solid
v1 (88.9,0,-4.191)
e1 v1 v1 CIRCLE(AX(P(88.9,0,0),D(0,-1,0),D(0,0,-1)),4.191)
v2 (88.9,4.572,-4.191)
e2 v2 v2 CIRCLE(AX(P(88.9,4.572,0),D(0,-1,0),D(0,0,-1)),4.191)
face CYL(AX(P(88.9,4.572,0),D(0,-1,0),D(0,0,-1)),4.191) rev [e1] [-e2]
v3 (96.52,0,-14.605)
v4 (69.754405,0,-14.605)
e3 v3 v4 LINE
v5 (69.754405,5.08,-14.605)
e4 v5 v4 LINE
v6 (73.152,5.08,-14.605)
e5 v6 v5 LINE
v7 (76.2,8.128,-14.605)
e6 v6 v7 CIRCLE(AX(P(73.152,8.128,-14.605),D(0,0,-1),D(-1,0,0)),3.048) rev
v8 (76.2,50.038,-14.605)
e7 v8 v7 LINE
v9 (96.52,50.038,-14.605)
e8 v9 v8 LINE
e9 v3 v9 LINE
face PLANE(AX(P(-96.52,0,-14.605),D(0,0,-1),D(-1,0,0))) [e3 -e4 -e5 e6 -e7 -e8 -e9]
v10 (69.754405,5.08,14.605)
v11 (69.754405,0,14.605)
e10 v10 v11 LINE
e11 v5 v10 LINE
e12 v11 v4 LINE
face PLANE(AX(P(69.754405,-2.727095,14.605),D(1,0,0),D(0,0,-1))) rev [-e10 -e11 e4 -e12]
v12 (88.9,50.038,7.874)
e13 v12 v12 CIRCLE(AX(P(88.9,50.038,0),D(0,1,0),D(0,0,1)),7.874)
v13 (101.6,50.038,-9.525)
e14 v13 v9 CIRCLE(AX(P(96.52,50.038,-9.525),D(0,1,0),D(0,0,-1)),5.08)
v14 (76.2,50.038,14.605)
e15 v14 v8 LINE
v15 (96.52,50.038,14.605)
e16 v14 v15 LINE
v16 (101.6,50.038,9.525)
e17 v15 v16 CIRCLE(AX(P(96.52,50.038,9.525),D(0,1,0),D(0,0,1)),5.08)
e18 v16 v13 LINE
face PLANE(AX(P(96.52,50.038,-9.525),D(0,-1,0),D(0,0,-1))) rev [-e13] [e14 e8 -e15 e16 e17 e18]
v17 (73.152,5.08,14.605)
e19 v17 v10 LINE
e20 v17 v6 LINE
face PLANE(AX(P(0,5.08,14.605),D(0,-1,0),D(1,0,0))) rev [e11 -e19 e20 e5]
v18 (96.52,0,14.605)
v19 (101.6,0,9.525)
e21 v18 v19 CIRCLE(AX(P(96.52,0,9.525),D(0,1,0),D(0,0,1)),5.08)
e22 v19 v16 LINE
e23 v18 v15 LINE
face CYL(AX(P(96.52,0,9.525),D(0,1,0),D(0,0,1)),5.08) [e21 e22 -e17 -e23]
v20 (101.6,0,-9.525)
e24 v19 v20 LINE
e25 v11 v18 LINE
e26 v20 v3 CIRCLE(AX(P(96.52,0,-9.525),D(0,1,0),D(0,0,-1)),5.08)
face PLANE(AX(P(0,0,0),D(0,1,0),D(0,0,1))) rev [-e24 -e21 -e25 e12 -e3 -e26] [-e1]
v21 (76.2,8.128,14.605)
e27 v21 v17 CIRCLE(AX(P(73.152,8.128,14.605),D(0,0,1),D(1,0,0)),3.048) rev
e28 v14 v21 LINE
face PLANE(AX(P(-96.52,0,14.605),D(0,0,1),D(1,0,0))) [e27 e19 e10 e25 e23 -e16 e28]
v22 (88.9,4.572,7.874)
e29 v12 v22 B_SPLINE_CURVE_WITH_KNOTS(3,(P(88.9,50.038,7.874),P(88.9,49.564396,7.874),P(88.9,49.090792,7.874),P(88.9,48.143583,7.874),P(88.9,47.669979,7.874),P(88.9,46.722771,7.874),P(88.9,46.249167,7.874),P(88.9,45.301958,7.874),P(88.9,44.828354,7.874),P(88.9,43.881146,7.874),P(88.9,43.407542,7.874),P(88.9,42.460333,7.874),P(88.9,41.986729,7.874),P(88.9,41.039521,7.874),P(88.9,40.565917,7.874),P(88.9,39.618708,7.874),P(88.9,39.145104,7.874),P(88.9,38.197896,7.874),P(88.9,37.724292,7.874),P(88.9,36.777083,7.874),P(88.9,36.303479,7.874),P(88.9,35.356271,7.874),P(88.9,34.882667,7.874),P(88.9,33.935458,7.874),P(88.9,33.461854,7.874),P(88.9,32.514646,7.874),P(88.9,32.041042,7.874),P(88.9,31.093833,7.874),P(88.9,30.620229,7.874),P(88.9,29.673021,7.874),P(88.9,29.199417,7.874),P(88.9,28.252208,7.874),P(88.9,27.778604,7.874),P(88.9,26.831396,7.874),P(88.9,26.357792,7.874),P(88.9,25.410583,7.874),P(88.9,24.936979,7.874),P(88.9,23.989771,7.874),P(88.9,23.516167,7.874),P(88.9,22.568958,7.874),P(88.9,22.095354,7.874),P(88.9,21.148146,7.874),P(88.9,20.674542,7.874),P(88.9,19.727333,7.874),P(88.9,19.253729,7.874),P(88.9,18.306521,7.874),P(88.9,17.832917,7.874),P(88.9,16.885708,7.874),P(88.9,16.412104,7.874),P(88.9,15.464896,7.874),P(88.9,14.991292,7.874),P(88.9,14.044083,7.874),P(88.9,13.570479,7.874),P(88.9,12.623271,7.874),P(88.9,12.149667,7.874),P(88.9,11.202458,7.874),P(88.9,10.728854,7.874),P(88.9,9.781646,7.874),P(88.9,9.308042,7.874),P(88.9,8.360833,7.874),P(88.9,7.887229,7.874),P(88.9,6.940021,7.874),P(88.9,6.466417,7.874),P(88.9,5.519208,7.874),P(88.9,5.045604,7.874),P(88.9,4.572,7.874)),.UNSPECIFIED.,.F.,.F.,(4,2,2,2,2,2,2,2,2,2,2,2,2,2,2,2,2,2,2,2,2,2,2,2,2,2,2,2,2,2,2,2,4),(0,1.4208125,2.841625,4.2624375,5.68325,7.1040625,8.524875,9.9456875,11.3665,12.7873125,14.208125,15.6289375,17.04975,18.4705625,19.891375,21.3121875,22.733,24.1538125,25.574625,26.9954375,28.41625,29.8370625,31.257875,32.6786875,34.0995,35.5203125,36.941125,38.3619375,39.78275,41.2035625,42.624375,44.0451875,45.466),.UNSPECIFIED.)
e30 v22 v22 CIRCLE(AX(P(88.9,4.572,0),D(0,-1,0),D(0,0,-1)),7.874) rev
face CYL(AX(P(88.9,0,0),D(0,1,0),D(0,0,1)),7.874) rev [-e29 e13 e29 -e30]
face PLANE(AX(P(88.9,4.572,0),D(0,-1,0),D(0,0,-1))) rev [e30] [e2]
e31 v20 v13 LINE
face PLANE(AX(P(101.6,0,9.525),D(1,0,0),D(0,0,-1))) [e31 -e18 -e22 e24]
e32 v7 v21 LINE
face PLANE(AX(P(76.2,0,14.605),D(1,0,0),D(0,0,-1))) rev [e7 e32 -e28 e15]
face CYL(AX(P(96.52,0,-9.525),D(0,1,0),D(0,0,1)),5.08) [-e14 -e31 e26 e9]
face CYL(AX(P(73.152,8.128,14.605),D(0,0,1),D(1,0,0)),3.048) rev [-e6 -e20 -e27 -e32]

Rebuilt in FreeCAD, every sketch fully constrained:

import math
import FreeCAD as App
import Part
import Sketcher
Q = App.Units.Quantity


def edges_at(feature, points):
    """Names of the edges that pass closest to the given points."""
    edges = feature.Shape.Edges
    near = lambda p: min(range(len(edges)), key=lambda i: edges[i].distToShape(Part.Vertex(*p))[0])
    return sorted({f"Edge{near(p) + 1}" for p in points})


def add_polygon(sketch, points):
    """Adds a closed chain of lines whose ends are joined by coincident constraints."""
    first, n = sketch.GeometryCount, len(points)
    for a, b in zip(points, points[1:] + points[:1]):
        sketch.addGeometry(Part.LineSegment(App.Vector(*a, 0), App.Vector(*b, 0)), False)
    for i in range(n):
        sketch.addConstraint(Sketcher.Constraint("Coincident", first + i, 2, first + (i + 1) % n, 1))

doc = App.newDocument("Part")
body = doc.addObject("PartDesign::Body", "Body")

# Sketch on XZ plane
sketch1 = body.newObject("Sketcher::SketchObject", "Sketch")
sketch1.AttachmentSupport = (doc.getObject("XZ_Plane"), [""])
sketch1.MapMode = "FlatFace"
sketch1.addGeometry(Part.Circle(App.Vector(0, 0, 0), App.Vector(0, 0, 1), 13.97), False)
sketch1.addGeometry(Part.Circle(App.Vector(0, 9.5, 0), App.Vector(0, 0, 1), 1.275), False)
sketch1.addGeometry(Part.Circle(App.Vector(9.5, 0, 0), App.Vector(0, 0, 1), 1.275), False)
sketch1.addGeometry(Part.Circle(App.Vector(-9.5, 0, 0), App.Vector(0, 0, 1), 1.275), False)
sketch1.addGeometry(Part.Circle(App.Vector(0, -9.5, 0), App.Vector(0, 0, 1), 1.275), False)
sketch1.addConstraint(Sketcher.Constraint("Coincident", 0, 3, -1, 1))
sketch1.addConstraint(Sketcher.Constraint("Equal", 1, 2))
sketch1.addConstraint(Sketcher.Constraint("Equal", 2, 3))
sketch1.addConstraint(Sketcher.Constraint("Equal", 3, 4))
sketch1.addConstraint(Sketcher.Constraint("Symmetric", 2, 3, 3, 3, -1, 1))
sketch1.addConstraint(Sketcher.Constraint("Symmetric", 1, 3, 4, 3, -1, 1))
sketch1.addConstraint(Sketcher.Constraint("PointOnObject", 1, 3, -2))
sketch1.addConstraint(Sketcher.Constraint("PointOnObject", 2, 3, -1))
sketch1.addConstraint(Sketcher.Constraint("Diameter", 0, Q("1.1 in")))
sketch1.addConstraint(Sketcher.Constraint("Diameter", 1, Q("2.55 mm")))
sketch1.addConstraint(Sketcher.Constraint("DistanceY", -1, 1, 1, 3, Q("9.5 mm")))
sketch1.addConstraint(Sketcher.Constraint("DistanceX", -1, 1, 2, 3, Q("9.5 mm")))
pad1 = body.newObject("PartDesign::Pad", "Pad")
pad1.Profile = sketch1
pad1.Length = Q("0.12 in")
pad1.Reversed = True

# Sketch on XZ plane
sketch2 = body.newObject("Sketcher::SketchObject", "Sketch001")
sketch2.AttachmentSupport = (doc.getObject("XZ_Plane"), [""])
sketch2.MapMode = "FlatFace"
sketch2.AttachmentOffset = App.Placement(App.Vector(0, 0, -0.12 * 25.4), App.Rotation())
sketch2.addGeometry(Part.LineSegment(App.Vector(-96.52, 14.605, 0), App.Vector(96.52, 14.605, 0)), False)
sketch2.addGeometry(Part.ArcOfCircle(Part.Circle(App.Vector(96.52, 9.525, 0), App.Vector(0, 0, 1), 5.08), math.radians(0), math.radians(90)), False)
sketch2.addGeometry(Part.LineSegment(App.Vector(101.6, 9.525, 0), App.Vector(101.6, -9.525, 0)), False)
sketch2.addGeometry(Part.ArcOfCircle(Part.Circle(App.Vector(96.52, -9.525, 0), App.Vector(0, 0, 1), 5.08), math.radians(-90), math.radians(0)), False)
sketch2.addGeometry(Part.LineSegment(App.Vector(96.52, -14.605, 0), App.Vector(-96.52, -14.605, 0)), False)
sketch2.addGeometry(Part.ArcOfCircle(Part.Circle(App.Vector(-96.52, -9.525, 0), App.Vector(0, 0, 1), 5.08), math.radians(-180), math.radians(-90)), False)
sketch2.addGeometry(Part.LineSegment(App.Vector(-101.6, -9.525, 0), App.Vector(-101.6, 9.525, 0)), False)
sketch2.addGeometry(Part.ArcOfCircle(Part.Circle(App.Vector(-96.52, 9.525, 0), App.Vector(0, 0, 1), 5.08), math.radians(90), math.radians(180)), False)
sketch2.addGeometry(Part.Circle(App.Vector(0, 9.5, 0), App.Vector(0, 0, 1), 1.275), False)
sketch2.addGeometry(Part.Circle(App.Vector(-88.9, 0, 0), App.Vector(0, 0, 1), 7.874), False)
sketch2.addGeometry(Part.Circle(App.Vector(-9.5, 0, 0), App.Vector(0, 0, 1), 1.275), False)
sketch2.addGeometry(Part.Circle(App.Vector(0, -9.5, 0), App.Vector(0, 0, 1), 1.275), False)
sketch2.addGeometry(Part.Circle(App.Vector(9.5, 0, 0), App.Vector(0, 0, 1), 1.275), False)
sketch2.addGeometry(Part.Circle(App.Vector(88.9, 0, 0), App.Vector(0, 0, 1), 7.874), False)
sketch2.addConstraint(Sketcher.Constraint("Tangent", 0, 2, 1, 2))
sketch2.addConstraint(Sketcher.Constraint("Tangent", 1, 1, 2, 1))
sketch2.addConstraint(Sketcher.Constraint("Tangent", 2, 2, 3, 2))
sketch2.addConstraint(Sketcher.Constraint("Tangent", 3, 1, 4, 1))
sketch2.addConstraint(Sketcher.Constraint("Tangent", 4, 2, 5, 2))
sketch2.addConstraint(Sketcher.Constraint("Tangent", 5, 1, 6, 1))
sketch2.addConstraint(Sketcher.Constraint("Tangent", 6, 2, 7, 2))
sketch2.addConstraint(Sketcher.Constraint("Tangent", 7, 1, 0, 1))
sketch2.addConstraint(Sketcher.Constraint("Horizontal", 0))
sketch2.addConstraint(Sketcher.Constraint("Vertical", 2))
sketch2.addConstraint(Sketcher.Constraint("Horizontal", 4))
sketch2.addConstraint(Sketcher.Constraint("Vertical", 6))
sketch2.addConstraint(Sketcher.Constraint("Equal", 1, 3))
sketch2.addConstraint(Sketcher.Constraint("Equal", 3, 5))
sketch2.addConstraint(Sketcher.Constraint("Equal", 5, 7))
sketch2.addConstraint(Sketcher.Constraint("Equal", 8, 10))
sketch2.addConstraint(Sketcher.Constraint("Equal", 10, 11))
sketch2.addConstraint(Sketcher.Constraint("Equal", 11, 12))
sketch2.addConstraint(Sketcher.Constraint("Equal", 9, 13))
sketch2.addConstraint(Sketcher.Constraint("Symmetric", 1, 3, 5, 3, -1, 1))
sketch2.addConstraint(Sketcher.Constraint("Symmetric", 8, 3, 11, 3, -1, 1))
sketch2.addConstraint(Sketcher.Constraint("Symmetric", 10, 3, 12, 3, -1, 1))
sketch2.addConstraint(Sketcher.Constraint("Symmetric", 9, 3, 13, 3, -1, 1))
sketch2.addConstraint(Sketcher.Constraint("PointOnObject", 8, 3, -2))
sketch2.addConstraint(Sketcher.Constraint("PointOnObject", 9, 3, -1))
sketch2.addConstraint(Sketcher.Constraint("PointOnObject", 10, 3, -1))
sketch2.addConstraint(Sketcher.Constraint("Radius", 1, Q("0.2 in")))
sketch2.addConstraint(Sketcher.Constraint("Diameter", 9, Q("0.62 in")))
sketch2.addConstraint(Sketcher.Constraint("DistanceX", 0, 1, 0, 2, Q("7.6 in")))
sketch2.addConstraint(Sketcher.Constraint("DistanceY", 2, 2, 2, 1, Q("0.75 in")))
sketch2.addConstraint(Sketcher.Constraint("DistanceX", 9, 3, -1, 1, Q("3.5 in")))
sketch2.addConstraint(Sketcher.Constraint("Diameter", 8, Q("2.55 mm")))
sketch2.addConstraint(Sketcher.Constraint("DistanceY", -1, 1, 8, 3, Q("9.5 mm")))
sketch2.addConstraint(Sketcher.Constraint("DistanceX", 10, 3, -1, 1, Q("9.5 mm")))
pad2 = body.newObject("PartDesign::Pad", "Pad001")
pad2.Profile = sketch2
pad2.Type = "TwoLengths"
pad2.Length = Q("1.85 in")
pad2.Length2 = Q("0.12 in")
pad2.Reversed = True

# Sketch on XY plane
sketch3 = body.newObject("Sketcher::SketchObject", "Sketch002")
sketch3.AttachmentSupport = (doc.getObject("XY_Plane"), [""])
sketch3.MapMode = "FlatFace"
sketch3.AttachmentOffset = App.Placement(App.Vector(0, 0, -0.575 * 25.4), App.Rotation())
add_polygon(sketch3, [(76.2, 5.08), (-76.2, 5.08), (-76.2, 50.038), (76.2, 50.038)])  # lines 0-3
sketch3.addConstraint(Sketcher.Constraint("Horizontal", 0))
sketch3.addConstraint(Sketcher.Constraint("Vertical", 1))
sketch3.addConstraint(Sketcher.Constraint("Horizontal", 2))
sketch3.addConstraint(Sketcher.Constraint("Vertical", 3))
sketch3.addConstraint(Sketcher.Constraint("DistanceX", 0, 2, 0, 1, Q("6 in")))
sketch3.addConstraint(Sketcher.Constraint("DistanceX", 0, 2, -1, 1, Q("3 in")))
sketch3.addConstraint(Sketcher.Constraint("DistanceY", 1, 1, 1, 2, Q("1.77 in")))
sketch3.addConstraint(Sketcher.Constraint("DistanceY", -1, 1, 0, 2, Q("0.2 in")))
pocket1 = body.newObject("PartDesign::Pocket", "Pocket")
pocket1.Profile = sketch3
pocket1.Type = "ThroughAll"
pocket1.Reversed = True

# Sketch on XZ plane
sketch4 = body.newObject("Sketcher::SketchObject", "Sketch003")
sketch4.AttachmentSupport = (doc.getObject("XZ_Plane"), [""])
sketch4.MapMode = "FlatFace"
sketch4.addGeometry(Part.Circle(App.Vector(-88.9, 0, 0), App.Vector(0, 0, 1), 8.89), False)
sketch4.addGeometry(Part.Circle(App.Vector(-88.9, 0, 0), App.Vector(0, 0, 1), 4.191), False)
sketch4.addGeometry(Part.Circle(App.Vector(88.9, 0, 0), App.Vector(0, 0, 1), 8.89), False)
sketch4.addGeometry(Part.Circle(App.Vector(88.9, 0, 0), App.Vector(0, 0, 1), 4.191), False)
sketch4.addConstraint(Sketcher.Constraint("Coincident", 1, 3, 0, 3))
sketch4.addConstraint(Sketcher.Constraint("Coincident", 3, 3, 2, 3))
sketch4.addConstraint(Sketcher.Constraint("Equal", 0, 2))
sketch4.addConstraint(Sketcher.Constraint("Equal", 1, 3))
sketch4.addConstraint(Sketcher.Constraint("Symmetric", 0, 3, 2, 3, -1, 1))
sketch4.addConstraint(Sketcher.Constraint("PointOnObject", 0, 3, -1))
sketch4.addConstraint(Sketcher.Constraint("Diameter", 0, Q("0.7 in")))
sketch4.addConstraint(Sketcher.Constraint("Diameter", 1, Q("0.33 in")))
sketch4.addConstraint(Sketcher.Constraint("DistanceX", 0, 3, 2, 3, Q("7 in")))
pad3 = body.newObject("PartDesign::Pad", "Pad002")
pad3.Profile = sketch4
pad3.Length = Q("0.18 in")
pad3.Reversed = True
doc.recompute()

fillet = body.newObject("PartDesign::Fillet", "Fillet")
fillet.Base = (pad3, edges_at(pad3, [(-76.2, 5.08, 0), (76.2, 5.08, 0)]))
fillet.Radius = Q("0.12 in")

# Sketch on XY plane
sketch5 = body.newObject("Sketcher::SketchObject", "Sketch004")
sketch5.AttachmentSupport = (doc.getObject("XY_Plane"), [""])
sketch5.MapMode = "FlatFace"
sketch5.AttachmentOffset = App.Placement(App.Vector(0, 0, -0.575 * 25.4), App.Rotation())
add_polygon(sketch5, [(69.754405, 56.134157), (69.754405, -2.727095), (-129.953413, -2.727095), (-129.953413, 56.134157)])  # lines 0-3
sketch5.addConstraint(Sketcher.Constraint("Vertical", 0))
sketch5.addConstraint(Sketcher.Constraint("Horizontal", 1))
sketch5.addConstraint(Sketcher.Constraint("Vertical", 2))
sketch5.addConstraint(Sketcher.Constraint("Horizontal", 3))
sketch5.addConstraint(Sketcher.Constraint("DistanceX", 1, 2, 1, 1, Q("199.707818 mm")))
sketch5.addConstraint(Sketcher.Constraint("DistanceY", 0, 2, 0, 1, Q("58.861252 mm")))
sketch5.addConstraint(Sketcher.Constraint("DistanceX", -1, 1, 0, 2, Q("69.754405 mm")))
sketch5.addConstraint(Sketcher.Constraint("DistanceY", 0, 2, -1, 1, Q("2.727095 mm")))
pocket2 = body.newObject("PartDesign::Pocket", "Pocket001")
pocket2.Profile = sketch5
pocket2.Type = "ThroughAll"
pocket2.Reversed = True

doc.recompute()
